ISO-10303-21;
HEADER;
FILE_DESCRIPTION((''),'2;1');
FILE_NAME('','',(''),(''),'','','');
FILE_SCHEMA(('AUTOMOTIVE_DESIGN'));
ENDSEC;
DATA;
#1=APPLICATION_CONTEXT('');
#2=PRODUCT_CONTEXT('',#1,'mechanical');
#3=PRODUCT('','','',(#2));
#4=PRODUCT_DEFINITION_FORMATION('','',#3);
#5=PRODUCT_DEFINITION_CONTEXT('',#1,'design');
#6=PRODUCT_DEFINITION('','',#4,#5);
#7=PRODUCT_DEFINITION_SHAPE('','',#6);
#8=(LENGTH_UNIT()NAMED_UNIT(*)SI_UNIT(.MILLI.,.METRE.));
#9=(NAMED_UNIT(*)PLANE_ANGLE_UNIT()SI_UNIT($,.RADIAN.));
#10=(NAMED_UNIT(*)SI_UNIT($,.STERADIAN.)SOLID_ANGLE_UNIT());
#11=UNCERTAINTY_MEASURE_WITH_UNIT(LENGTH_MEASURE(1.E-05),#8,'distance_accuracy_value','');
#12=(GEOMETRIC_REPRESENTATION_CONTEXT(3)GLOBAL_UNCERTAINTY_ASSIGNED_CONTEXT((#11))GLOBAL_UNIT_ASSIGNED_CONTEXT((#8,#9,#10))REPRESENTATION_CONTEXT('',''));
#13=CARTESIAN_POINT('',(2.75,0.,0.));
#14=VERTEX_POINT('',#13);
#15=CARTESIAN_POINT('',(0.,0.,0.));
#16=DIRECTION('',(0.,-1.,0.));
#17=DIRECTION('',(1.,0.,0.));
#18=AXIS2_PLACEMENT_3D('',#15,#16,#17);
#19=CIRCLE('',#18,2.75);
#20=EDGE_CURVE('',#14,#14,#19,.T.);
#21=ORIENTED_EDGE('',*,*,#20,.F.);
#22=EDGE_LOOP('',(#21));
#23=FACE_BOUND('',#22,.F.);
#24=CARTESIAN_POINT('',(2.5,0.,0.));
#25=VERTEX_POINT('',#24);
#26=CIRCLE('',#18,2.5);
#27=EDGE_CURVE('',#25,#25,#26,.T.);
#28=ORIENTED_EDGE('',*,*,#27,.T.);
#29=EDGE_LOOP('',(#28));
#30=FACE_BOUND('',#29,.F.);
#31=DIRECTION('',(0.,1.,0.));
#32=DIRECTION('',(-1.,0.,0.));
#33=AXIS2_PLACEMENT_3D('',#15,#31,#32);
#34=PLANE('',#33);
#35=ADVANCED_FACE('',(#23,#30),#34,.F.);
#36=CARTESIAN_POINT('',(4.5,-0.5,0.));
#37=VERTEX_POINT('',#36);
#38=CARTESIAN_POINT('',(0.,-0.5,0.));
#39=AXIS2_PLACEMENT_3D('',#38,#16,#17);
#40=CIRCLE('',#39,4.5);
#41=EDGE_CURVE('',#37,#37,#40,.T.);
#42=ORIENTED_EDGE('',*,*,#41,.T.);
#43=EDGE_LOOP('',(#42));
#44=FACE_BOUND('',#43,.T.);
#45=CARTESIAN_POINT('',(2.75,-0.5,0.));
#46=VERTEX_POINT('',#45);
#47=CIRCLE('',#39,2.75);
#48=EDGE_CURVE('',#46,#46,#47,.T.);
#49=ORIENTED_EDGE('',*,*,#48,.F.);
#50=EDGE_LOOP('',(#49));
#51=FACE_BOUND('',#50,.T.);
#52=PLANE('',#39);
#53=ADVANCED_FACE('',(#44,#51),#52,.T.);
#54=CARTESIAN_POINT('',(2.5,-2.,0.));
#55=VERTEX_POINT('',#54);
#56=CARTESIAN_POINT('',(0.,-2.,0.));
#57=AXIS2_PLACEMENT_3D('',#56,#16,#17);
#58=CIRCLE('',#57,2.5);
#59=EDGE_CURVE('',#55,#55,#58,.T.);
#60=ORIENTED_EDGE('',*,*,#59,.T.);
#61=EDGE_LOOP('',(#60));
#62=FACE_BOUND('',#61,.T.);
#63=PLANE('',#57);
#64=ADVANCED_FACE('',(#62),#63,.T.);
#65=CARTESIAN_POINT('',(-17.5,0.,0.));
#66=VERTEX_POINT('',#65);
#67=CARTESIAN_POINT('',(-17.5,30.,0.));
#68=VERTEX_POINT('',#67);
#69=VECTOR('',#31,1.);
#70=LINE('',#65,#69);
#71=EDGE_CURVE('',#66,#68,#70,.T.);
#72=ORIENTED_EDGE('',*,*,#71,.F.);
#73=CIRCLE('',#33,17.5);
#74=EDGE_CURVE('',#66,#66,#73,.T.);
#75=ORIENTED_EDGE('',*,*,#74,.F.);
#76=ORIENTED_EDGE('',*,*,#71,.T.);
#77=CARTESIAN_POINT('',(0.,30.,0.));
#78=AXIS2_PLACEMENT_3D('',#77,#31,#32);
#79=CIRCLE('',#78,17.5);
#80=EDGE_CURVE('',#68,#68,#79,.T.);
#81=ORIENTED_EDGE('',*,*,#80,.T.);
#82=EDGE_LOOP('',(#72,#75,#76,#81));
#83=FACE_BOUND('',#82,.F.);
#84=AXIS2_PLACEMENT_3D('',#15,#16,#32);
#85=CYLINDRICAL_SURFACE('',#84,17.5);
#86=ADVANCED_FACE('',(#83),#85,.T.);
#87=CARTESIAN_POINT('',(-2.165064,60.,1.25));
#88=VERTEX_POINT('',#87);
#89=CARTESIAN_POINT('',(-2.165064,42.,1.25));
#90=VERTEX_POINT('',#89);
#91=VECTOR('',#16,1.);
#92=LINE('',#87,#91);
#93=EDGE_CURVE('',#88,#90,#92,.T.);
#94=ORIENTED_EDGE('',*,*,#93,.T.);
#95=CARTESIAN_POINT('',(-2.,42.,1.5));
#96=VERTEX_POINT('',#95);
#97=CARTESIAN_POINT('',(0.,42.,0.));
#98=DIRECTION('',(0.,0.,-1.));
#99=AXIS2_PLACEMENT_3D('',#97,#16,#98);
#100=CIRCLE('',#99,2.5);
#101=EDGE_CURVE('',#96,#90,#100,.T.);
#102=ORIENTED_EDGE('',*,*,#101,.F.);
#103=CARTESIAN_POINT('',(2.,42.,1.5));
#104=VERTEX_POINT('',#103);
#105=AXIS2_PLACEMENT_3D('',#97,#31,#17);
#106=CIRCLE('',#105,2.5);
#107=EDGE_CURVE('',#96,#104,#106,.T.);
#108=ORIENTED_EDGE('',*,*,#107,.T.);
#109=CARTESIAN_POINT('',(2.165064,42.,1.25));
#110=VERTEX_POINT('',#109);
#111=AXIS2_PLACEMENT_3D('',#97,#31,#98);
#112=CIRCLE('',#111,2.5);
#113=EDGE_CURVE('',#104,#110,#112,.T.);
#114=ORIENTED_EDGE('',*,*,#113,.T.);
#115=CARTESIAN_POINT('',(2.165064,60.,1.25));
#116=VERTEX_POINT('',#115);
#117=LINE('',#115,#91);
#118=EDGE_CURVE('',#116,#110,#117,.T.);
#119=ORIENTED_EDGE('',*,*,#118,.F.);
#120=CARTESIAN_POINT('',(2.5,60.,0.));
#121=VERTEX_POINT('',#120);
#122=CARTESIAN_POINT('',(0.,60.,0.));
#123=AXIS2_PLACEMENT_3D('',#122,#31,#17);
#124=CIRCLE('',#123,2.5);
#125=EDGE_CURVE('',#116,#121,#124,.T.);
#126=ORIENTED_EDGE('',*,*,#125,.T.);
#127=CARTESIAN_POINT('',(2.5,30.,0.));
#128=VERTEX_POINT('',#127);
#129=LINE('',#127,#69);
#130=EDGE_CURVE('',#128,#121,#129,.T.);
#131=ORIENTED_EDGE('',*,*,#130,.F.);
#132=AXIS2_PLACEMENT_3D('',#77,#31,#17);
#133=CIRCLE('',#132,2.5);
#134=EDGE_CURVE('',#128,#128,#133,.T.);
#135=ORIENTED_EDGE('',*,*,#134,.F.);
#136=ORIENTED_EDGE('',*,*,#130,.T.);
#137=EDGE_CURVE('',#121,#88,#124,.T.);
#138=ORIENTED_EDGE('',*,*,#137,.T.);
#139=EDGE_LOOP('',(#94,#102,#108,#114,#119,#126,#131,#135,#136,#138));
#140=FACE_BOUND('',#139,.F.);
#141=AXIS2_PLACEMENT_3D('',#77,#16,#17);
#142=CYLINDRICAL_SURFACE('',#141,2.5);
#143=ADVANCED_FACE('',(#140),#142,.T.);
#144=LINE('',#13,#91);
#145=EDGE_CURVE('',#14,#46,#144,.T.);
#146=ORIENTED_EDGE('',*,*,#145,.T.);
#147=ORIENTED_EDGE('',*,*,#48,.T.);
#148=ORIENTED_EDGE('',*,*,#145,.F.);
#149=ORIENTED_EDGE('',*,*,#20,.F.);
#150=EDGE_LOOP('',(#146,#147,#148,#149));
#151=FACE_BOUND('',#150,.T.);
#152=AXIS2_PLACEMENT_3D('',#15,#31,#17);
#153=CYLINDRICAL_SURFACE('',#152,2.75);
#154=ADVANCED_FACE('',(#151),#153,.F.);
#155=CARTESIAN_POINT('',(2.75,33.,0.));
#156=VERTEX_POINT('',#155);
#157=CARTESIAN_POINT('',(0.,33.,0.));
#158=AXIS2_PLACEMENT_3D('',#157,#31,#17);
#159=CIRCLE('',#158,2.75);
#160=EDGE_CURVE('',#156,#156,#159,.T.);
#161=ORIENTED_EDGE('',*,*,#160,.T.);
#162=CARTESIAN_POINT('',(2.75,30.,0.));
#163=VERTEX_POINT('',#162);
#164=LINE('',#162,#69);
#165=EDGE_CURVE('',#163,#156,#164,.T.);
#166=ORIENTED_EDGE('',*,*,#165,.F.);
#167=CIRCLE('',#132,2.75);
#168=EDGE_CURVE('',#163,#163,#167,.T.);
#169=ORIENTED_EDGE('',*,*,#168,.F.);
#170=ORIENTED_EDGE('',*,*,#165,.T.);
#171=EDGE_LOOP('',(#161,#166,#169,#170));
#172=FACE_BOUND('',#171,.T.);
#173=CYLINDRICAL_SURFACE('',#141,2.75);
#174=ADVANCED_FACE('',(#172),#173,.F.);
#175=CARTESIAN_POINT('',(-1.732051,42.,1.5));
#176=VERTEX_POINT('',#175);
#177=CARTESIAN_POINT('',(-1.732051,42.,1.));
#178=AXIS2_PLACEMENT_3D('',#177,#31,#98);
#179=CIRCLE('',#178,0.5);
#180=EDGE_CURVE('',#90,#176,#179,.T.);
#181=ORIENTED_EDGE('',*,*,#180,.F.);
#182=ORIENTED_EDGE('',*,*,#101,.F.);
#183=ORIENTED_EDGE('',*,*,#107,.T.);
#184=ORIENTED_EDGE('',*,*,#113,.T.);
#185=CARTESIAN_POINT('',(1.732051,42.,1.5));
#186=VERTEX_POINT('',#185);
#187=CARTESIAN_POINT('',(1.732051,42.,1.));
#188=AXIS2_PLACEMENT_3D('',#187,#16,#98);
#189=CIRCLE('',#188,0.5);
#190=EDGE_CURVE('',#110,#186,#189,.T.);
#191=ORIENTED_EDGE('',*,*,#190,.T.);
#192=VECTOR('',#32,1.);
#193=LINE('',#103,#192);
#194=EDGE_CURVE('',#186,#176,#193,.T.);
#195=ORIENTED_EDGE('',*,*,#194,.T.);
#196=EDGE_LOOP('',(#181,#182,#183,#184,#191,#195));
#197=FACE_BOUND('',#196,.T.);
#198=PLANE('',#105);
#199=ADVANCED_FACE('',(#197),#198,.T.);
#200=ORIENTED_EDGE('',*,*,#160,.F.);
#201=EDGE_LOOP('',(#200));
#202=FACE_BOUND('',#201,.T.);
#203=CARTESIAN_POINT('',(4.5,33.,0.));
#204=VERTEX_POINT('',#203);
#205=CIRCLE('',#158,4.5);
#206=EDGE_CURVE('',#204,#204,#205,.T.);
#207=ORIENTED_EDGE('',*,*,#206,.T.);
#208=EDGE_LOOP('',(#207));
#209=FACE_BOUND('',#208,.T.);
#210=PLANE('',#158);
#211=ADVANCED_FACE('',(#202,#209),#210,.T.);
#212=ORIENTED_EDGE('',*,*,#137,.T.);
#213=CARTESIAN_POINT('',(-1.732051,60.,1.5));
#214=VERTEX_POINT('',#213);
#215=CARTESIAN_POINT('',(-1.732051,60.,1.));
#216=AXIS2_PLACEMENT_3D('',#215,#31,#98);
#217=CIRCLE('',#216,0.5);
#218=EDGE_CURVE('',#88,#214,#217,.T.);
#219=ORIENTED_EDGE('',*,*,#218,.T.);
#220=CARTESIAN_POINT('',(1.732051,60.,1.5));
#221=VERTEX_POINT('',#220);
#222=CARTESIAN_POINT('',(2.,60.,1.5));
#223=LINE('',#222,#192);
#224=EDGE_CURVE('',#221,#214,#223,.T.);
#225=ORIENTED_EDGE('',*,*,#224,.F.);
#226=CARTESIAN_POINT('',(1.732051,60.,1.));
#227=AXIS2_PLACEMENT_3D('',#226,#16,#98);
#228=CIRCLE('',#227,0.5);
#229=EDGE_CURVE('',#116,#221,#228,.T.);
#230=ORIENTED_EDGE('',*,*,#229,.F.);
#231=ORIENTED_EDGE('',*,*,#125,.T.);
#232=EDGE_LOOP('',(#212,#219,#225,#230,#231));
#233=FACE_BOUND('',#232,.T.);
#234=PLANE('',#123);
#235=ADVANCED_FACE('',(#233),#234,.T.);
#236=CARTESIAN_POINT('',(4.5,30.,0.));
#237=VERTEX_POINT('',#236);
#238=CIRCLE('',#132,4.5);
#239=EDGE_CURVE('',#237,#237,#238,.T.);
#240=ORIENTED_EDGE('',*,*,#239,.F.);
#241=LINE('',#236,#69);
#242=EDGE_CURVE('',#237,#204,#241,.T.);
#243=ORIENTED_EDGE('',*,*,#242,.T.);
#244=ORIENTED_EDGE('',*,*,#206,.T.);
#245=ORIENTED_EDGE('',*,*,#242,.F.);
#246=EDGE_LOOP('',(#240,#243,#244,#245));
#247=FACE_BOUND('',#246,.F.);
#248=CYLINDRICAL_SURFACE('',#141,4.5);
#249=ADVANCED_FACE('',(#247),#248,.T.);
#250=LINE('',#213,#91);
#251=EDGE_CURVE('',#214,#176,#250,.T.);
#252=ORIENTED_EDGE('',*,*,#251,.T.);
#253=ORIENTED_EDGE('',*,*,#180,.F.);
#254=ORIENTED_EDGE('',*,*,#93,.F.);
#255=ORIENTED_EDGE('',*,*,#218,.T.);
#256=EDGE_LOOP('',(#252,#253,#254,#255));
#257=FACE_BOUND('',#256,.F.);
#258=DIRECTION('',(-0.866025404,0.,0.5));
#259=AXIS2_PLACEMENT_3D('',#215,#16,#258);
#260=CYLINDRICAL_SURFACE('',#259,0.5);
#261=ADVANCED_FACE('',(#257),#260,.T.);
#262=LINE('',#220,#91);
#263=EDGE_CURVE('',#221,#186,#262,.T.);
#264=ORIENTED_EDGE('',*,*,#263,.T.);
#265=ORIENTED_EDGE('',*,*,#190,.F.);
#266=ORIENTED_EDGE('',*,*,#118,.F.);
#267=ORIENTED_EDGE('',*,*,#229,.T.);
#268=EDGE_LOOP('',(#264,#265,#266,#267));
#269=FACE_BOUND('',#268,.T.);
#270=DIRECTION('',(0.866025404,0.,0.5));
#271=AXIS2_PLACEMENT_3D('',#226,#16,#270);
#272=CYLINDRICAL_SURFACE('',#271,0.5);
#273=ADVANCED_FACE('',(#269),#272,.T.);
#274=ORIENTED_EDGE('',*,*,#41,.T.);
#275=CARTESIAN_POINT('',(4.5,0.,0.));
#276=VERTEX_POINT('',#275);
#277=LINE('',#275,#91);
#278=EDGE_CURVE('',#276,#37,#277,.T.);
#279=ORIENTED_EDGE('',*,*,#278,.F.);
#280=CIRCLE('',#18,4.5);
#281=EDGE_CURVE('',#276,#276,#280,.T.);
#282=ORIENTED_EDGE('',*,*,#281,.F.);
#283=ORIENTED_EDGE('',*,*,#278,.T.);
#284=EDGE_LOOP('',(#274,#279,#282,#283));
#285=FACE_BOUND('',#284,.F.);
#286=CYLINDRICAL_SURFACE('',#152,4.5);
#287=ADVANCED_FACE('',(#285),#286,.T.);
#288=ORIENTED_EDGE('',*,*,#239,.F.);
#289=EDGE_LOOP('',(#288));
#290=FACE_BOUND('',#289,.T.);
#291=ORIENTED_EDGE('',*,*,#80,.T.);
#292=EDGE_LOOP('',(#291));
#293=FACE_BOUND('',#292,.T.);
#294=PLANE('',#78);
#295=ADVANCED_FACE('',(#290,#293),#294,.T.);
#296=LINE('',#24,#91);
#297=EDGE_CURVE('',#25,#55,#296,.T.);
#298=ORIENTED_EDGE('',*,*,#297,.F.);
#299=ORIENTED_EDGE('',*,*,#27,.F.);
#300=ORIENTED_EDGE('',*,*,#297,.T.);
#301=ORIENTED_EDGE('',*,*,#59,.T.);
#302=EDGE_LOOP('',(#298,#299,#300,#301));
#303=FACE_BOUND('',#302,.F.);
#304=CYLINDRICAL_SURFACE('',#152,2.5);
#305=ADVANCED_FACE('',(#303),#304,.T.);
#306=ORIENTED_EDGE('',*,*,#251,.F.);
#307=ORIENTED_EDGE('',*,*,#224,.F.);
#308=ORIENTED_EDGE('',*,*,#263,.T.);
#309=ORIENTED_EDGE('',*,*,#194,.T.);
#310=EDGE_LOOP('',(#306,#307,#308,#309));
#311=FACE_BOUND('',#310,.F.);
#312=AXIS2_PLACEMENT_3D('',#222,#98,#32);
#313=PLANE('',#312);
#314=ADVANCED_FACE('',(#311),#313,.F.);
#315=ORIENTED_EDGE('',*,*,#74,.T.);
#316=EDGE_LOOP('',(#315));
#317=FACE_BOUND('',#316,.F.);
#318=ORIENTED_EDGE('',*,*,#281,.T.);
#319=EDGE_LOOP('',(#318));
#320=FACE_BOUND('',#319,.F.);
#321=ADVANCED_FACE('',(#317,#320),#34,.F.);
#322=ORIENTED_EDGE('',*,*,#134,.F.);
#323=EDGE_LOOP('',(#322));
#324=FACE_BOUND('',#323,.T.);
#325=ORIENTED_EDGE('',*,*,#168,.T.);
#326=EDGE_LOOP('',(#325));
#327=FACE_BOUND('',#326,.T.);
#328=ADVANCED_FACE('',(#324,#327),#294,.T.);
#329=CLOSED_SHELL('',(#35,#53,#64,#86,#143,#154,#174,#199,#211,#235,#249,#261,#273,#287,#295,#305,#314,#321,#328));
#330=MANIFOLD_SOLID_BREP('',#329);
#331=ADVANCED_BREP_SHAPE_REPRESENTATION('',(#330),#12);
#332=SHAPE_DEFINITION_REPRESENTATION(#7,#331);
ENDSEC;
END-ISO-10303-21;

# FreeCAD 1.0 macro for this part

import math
import FreeCAD as App
import Part
import Sketcher
from FreeCAD import Vector
Q = App.Units.Quantity


def edges_at(feature, points):
    """Names of the edges that pass closest to the given points."""
    edges = feature.Shape.Edges
    near = lambda p: min(range(len(edges)), key=lambda i: edges[i].distToShape(Part.Vertex(*p))[0])
    return sorted({f"Edge{near(p) + 1}" for p in points})

doc = App.newDocument("Part")
body = doc.addObject("PartDesign::Body", "Body")

# Sketch on XZ plane
sketch1 = body.newObject("Sketcher::SketchObject", "Sketch")
sketch1.AttachmentSupport = (doc.getObject("XZ_Plane"), [""])
sketch1.MapMode = "FlatFace"
sketch1.addGeometry(Part.Circle(Vector(0, 0, 0), Vector(0, 0, 1), 18), False)
sketch1.addConstraint([
    Sketcher.Constraint("Coincident", 0, 3, -1, 1),
    Sketcher.Constraint("Diameter", 0, Q("35 mm")),
])
pad1 = body.newObject("PartDesign::Pad", "Pad")
pad1.Profile = sketch1
pad1.Length = 30
pad1.Reversed = True

# Sketch on XZ plane
sketch2 = body.newObject("Sketcher::SketchObject", "Sketch001")
sketch2.AttachmentSupport = (doc.getObject("XZ_Plane"), [""])
sketch2.MapMode = "FlatFace"
sketch2.addGeometry(Part.Circle(Vector(0, 0, 0), Vector(0, 0, 1), 2.5), False)
sketch2.addConstraint([
    Sketcher.Constraint("Coincident", 0, 3, -1, 1),
    Sketcher.Constraint("Diameter", 0, Q("5 mm")),
])
pad2 = body.newObject("PartDesign::Pad", "Pad001")
pad2.Profile = sketch2
pad2.Length = 2

# Sketch on XZ plane
sketch3 = body.newObject("Sketcher::SketchObject", "Sketch002")
sketch3.AttachmentSupport = (doc.getObject("XZ_Plane"), [""])
sketch3.MapMode = "FlatFace"
sketch3.AttachmentOffset = App.Placement(Vector(0, 0, -30), App.Rotation())
sketch3.addGeometry(Part.Circle(Vector(0, 0, 0), Vector(0, 0, 1), 2.5), False)
sketch3.addConstraint([
    Sketcher.Constraint("Coincident", 0, 3, -1, 1),
    Sketcher.Constraint("Diameter", 0, Q("5 mm")),
])
pad3 = body.newObject("PartDesign::Pad", "Pad002")
pad3.Profile = sketch3
pad3.Length = 30
pad3.Reversed = True

# Sketch on XZ plane
sketch4 = body.newObject("Sketcher::SketchObject", "Sketch003")
sketch4.AttachmentSupport = (doc.getObject("XZ_Plane"), [""])
sketch4.MapMode = "FlatFace"
sketch4.AttachmentOffset = App.Placement(Vector(0, 0, -30), App.Rotation())
sketch4.addGeometry([
    Part.Circle(Vector(0, 0, 0), Vector(0, 0, 1), 4.5),
    Part.Circle(Vector(0, 0, 0), Vector(0, 0, 1), 2.8),
], False)
sketch4.addConstraint([
    Sketcher.Constraint("Coincident", 0, 3, -1, 1),
    Sketcher.Constraint("Coincident", 1, 3, -1, 1),
    Sketcher.Constraint("Diameter", 0, Q("9 mm")),
    Sketcher.Constraint("Diameter", 1, Q("5.5 mm")),
])
pad4 = body.newObject("PartDesign::Pad", "Pad003")
pad4.Profile = sketch4
pad4.Length = 3
pad4.Reversed = True

# Sketch on XZ plane
sketch5 = body.newObject("Sketcher::SketchObject", "Sketch004")
sketch5.AttachmentSupport = (doc.getObject("XZ_Plane"), [""])
sketch5.MapMode = "FlatFace"
sketch5.addGeometry([
    Part.Circle(Vector(0, 0, 0), Vector(0, 0, 1), 4.5),
    Part.Circle(Vector(0, 0, 0), Vector(0, 0, 1), 2.8),
], False)
sketch5.addConstraint([
    Sketcher.Constraint("Coincident", 0, 3, -1, 1),
    Sketcher.Constraint("Coincident", 1, 3, -1, 1),
    Sketcher.Constraint("Diameter", 0, Q("9 mm")),
    Sketcher.Constraint("Diameter", 1, Q("5.5 mm")),
])
pad5 = body.newObject("PartDesign::Pad", "Pad004")
pad5.Profile = sketch5
pad5.Length = 0.5

# Sketch on XZ plane
sketch6 = body.newObject("Sketcher::SketchObject", "Sketch005")
sketch6.AttachmentSupport = (doc.getObject("XZ_Plane"), [""])
sketch6.MapMode = "FlatFace"
sketch6.AttachmentOffset = App.Placement(Vector(0, 0, -60), App.Rotation())
sketch6.addGeometry([
    Part.ArcOfCircle(Part.Circle(Vector(0, 0, 0), Vector(0, 0, 1), 2.5), math.radians(37), math.radians(143)),
    Part.LineSegment(Vector(2, 1.5, 0), Vector(-2, 1.5, 0)),
], False)
sketch6.addConstraint([
    Sketcher.Constraint("Coincident", 0, 1, 1, 1),
    Sketcher.Constraint("Coincident", 1, 2, 0, 2),
    Sketcher.Constraint("Horizontal", 1),
    Sketcher.Constraint("Coincident", 0, 3, -1, 1),
    Sketcher.Constraint("DistanceY", -1, 1, 0, 1, Q("1.5 mm")),
    Sketcher.Constraint("Radius", 0, Q("2.5 mm")),
])
pocket1 = body.newObject("PartDesign::Pocket", "Pocket")
pocket1.Profile = sketch6
pocket1.Length = 18
pocket1.Reversed = True
doc.recompute()

fillet = body.newObject("PartDesign::Fillet", "Fillet")
fillet.Base = (pocket1, edges_at(pocket1, [(2, 51, 1.5), (-2, 51, 1.5)]))
fillet.Radius = 0.5

doc.recompute()
